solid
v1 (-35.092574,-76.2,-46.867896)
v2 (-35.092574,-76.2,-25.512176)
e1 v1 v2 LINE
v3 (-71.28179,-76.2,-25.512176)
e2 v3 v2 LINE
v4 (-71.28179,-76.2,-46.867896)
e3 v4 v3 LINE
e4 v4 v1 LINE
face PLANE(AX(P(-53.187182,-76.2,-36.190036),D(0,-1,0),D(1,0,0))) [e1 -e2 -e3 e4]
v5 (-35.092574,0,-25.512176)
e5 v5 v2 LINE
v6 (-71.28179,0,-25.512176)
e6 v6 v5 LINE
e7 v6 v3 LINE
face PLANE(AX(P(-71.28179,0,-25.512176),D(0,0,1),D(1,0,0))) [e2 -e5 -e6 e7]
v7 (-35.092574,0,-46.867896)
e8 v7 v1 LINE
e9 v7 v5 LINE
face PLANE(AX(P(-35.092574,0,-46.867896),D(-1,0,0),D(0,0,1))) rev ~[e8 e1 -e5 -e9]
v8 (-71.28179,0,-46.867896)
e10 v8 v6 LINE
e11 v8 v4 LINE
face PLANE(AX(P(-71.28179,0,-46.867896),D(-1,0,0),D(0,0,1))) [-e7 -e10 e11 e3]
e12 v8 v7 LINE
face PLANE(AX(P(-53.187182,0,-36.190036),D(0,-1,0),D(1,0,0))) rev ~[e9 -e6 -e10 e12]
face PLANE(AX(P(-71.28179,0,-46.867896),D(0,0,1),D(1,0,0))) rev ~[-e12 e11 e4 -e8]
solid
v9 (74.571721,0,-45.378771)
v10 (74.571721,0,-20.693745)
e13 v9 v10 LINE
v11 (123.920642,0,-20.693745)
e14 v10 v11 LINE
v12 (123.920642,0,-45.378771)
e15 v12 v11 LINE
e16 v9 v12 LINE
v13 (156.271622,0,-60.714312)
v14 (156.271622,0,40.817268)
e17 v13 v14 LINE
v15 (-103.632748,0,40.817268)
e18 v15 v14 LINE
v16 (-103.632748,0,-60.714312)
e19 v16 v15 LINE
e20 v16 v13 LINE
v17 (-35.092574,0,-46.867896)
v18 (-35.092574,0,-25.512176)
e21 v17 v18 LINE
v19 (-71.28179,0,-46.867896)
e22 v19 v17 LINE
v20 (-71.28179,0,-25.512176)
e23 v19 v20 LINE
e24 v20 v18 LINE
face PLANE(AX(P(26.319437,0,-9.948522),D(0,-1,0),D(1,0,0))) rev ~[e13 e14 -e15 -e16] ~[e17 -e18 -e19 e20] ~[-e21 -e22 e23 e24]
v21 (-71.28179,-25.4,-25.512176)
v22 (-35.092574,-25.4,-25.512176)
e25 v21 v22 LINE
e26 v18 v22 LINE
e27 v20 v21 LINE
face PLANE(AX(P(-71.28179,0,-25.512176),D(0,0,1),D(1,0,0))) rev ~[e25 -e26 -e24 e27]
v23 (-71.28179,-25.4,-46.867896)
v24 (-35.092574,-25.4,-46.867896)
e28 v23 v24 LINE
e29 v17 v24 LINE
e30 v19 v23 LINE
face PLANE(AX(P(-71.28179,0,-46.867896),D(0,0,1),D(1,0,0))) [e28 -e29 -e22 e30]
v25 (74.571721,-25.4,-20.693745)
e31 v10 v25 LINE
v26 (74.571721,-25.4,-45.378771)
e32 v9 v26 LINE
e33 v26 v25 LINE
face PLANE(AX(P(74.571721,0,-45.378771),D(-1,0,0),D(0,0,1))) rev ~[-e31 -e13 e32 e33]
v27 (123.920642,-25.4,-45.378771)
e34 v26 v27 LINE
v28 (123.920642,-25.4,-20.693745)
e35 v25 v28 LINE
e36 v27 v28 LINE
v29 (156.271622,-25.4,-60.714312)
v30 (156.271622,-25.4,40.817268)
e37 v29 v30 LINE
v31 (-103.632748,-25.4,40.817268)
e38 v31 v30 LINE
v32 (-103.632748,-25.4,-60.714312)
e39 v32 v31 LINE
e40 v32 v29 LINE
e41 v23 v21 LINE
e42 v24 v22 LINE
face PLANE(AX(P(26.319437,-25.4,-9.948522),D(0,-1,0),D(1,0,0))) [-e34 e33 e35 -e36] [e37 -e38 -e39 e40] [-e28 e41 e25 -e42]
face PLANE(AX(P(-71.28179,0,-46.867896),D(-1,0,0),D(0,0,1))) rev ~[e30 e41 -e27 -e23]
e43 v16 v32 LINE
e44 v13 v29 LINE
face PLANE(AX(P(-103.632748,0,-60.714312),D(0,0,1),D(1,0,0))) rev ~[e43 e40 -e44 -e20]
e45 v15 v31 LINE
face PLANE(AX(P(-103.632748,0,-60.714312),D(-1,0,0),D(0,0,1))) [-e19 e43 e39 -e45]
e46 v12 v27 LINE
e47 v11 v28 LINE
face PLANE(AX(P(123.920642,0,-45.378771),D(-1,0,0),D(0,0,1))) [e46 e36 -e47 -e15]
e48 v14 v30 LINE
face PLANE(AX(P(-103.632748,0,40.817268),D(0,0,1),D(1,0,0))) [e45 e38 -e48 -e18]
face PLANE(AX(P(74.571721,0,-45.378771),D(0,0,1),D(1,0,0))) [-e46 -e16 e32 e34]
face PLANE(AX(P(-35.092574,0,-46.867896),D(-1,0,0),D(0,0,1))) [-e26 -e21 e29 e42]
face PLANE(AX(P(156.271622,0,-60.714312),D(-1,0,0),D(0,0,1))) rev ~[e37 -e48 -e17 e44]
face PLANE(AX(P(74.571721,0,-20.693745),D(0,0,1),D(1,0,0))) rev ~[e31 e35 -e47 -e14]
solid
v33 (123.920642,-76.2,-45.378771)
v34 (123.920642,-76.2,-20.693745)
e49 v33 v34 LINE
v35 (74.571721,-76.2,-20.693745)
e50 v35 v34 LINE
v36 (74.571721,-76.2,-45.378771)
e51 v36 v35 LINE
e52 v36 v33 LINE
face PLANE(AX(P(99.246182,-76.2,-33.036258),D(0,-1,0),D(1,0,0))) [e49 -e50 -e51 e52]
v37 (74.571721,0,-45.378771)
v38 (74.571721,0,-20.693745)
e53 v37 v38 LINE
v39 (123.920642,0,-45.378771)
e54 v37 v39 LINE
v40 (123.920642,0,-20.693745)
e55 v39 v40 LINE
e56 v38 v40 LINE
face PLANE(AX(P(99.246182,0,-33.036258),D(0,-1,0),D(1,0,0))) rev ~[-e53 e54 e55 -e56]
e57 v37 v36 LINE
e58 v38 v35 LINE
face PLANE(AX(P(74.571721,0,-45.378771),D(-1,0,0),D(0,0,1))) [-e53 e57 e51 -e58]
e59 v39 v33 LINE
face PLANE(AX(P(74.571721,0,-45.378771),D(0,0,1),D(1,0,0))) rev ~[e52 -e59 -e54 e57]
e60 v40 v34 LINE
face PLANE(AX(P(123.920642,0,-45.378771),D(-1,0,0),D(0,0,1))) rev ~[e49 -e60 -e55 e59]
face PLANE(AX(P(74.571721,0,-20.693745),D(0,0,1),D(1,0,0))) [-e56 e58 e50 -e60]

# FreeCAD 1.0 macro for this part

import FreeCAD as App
import Part
import Sketcher
from FreeCAD import Vector
Q = App.Units.Quantity

doc = App.newDocument("Part")
params = doc.addObject("Spreadsheet::Sheet", "Params")
for row, (alias, value) in enumerate([
    ("pad1_length", "3 in"),
    ("pad2_length", "1 in"),
], start=1):
    params.set(f"A{row}", alias)
    params.set(f"B{row}", "=" + value)
    params.setAlias(f"B{row}", alias)

body = doc.addObject("PartDesign::Body", "Body")
body.AllowCompound = True

# Sketch on XZ plane
sketch1 = body.newObject("Sketcher::SketchObject", "Sketch")
sketch1.AttachmentSupport = (doc.getObject("XZ_Plane"), [""])
sketch1.MapMode = "FlatFace"
sketch1.addGeometry([
    Part.LineSegment(Vector(-71.28179, -25.512176, 0), Vector(-71.28179, -46.867896, 0)),  # 0
    Part.LineSegment(Vector(-71.28179, -46.867896, 0), Vector(-35.092574, -46.867896, 0)),  # 1
    Part.LineSegment(Vector(-35.092574, -46.867896, 0), Vector(-35.092574, -25.512176, 0)),  # 2
    Part.LineSegment(Vector(-35.092574, -25.512176, 0), Vector(-71.28179, -25.512176, 0)),  # 3
    Part.LineSegment(Vector(74.571721, -20.693745, 0), Vector(74.571721, -45.378771, 0)),  # 4
    Part.LineSegment(Vector(74.571721, -45.378771, 0), Vector(123.920642, -45.378771, 0)),  # 5
    Part.LineSegment(Vector(123.920642, -45.378771, 0), Vector(123.920642, -20.693745, 0)),  # 6
    Part.LineSegment(Vector(123.920642, -20.693745, 0), Vector(74.571721, -20.693745, 0)),  # 7
], False)
sketch1.addConstraint([
    Sketcher.Constraint("Coincident", 0, 2, 1, 1),
    Sketcher.Constraint("Coincident", 1, 2, 2, 1),
    Sketcher.Constraint("Coincident", 2, 2, 3, 1),
    Sketcher.Constraint("Coincident", 3, 2, 0, 1),
    Sketcher.Constraint("Coincident", 4, 2, 5, 1),
    Sketcher.Constraint("Coincident", 5, 2, 6, 1),
    Sketcher.Constraint("Coincident", 6, 2, 7, 1),
    Sketcher.Constraint("Coincident", 7, 2, 4, 1),
    Sketcher.Constraint("Vertical", 0),
    Sketcher.Constraint("Horizontal", 1),
    Sketcher.Constraint("Vertical", 2),
    Sketcher.Constraint("Horizontal", 3),
    Sketcher.Constraint("Vertical", 4),
    Sketcher.Constraint("Horizontal", 5),
    Sketcher.Constraint("Vertical", 6),
    Sketcher.Constraint("Horizontal", 7),
    Sketcher.Constraint("DistanceX", 5, 1, 5, 2, Q("49.348921 mm")),
    Sketcher.Constraint("DistanceY", 0, 2, 0, 1, Q("21.355719 mm")),
    Sketcher.Constraint("DistanceX", 1, 1, 1, 2, Q("36.189217 mm")),
    Sketcher.Constraint("DistanceY", 4, 2, 4, 1, Q("24.685026 mm")),
    Sketcher.Constraint("DistanceX", 0, 2, -1, 1, Q("71.28179 mm")),
    Sketcher.Constraint("DistanceX", -1, 1, 4, 2, Q("74.571721 mm")),
    Sketcher.Constraint("DistanceY", 4, 2, -1, 1, Q("45.378771 mm")),
    Sketcher.Constraint("DistanceY", 2, 2, 6, 2, Q("4.818431 mm")),
])
pad1 = body.newObject("PartDesign::Pad", "Pad")
pad1.Profile = sketch1
pad1.setExpression("Length", "Params.pad1_length")
body2 = doc.addObject("PartDesign::Body", "Body001")

# Sketch on XZ plane
sketch2 = body2.newObject("Sketcher::SketchObject", "Sketch001")
sketch2.AttachmentSupport = (doc.getObject("XZ_Plane001"), [""])
sketch2.MapMode = "FlatFace"
sketch2.addGeometry([
    Part.LineSegment(Vector(-103.632748, 40.817268, 0), Vector(-103.632748, -60.714312, 0)),  # 0
    Part.LineSegment(Vector(-103.632748, -60.714312, 0), Vector(156.271622, -60.714312, 0)),  # 1
    Part.LineSegment(Vector(156.271622, -60.714312, 0), Vector(156.271622, 40.817268, 0)),  # 2
    Part.LineSegment(Vector(156.271622, 40.817268, 0), Vector(-103.632748, 40.817268, 0)),  # 3
    Part.LineSegment(Vector(-35.092574, -46.867896, 0), Vector(-71.28179, -46.867896, 0)),  # 4
    Part.LineSegment(Vector(-71.28179, -46.867896, 0), Vector(-71.28179, -25.512176, 0)),  # 5
    Part.LineSegment(Vector(-71.28179, -25.512176, 0), Vector(-35.092574, -25.512176, 0)),  # 6
    Part.LineSegment(Vector(-35.092574, -25.512176, 0), Vector(-35.092574, -46.867896, 0)),  # 7
    Part.LineSegment(Vector(123.920642, -45.378771, 0), Vector(74.571721, -45.378771, 0)),  # 8
    Part.LineSegment(Vector(74.571721, -45.378771, 0), Vector(74.571721, -20.693745, 0)),  # 9
    Part.LineSegment(Vector(74.571721, -20.693745, 0), Vector(123.920642, -20.693745, 0)),  # 10
    Part.LineSegment(Vector(123.920642, -20.693745, 0), Vector(123.920642, -45.378771, 0)),  # 11
], False)
sketch2.addConstraint([
    Sketcher.Constraint("Coincident", 0, 2, 1, 1),
    Sketcher.Constraint("Coincident", 1, 2, 2, 1),
    Sketcher.Constraint("Coincident", 2, 2, 3, 1),
    Sketcher.Constraint("Coincident", 3, 2, 0, 1),
    Sketcher.Constraint("Coincident", 4, 2, 5, 1),
    Sketcher.Constraint("Coincident", 5, 2, 6, 1),
    Sketcher.Constraint("Coincident", 6, 2, 7, 1),
    Sketcher.Constraint("Coincident", 7, 2, 4, 1),
    Sketcher.Constraint("Coincident", 8, 2, 9, 1),
    Sketcher.Constraint("Coincident", 9, 2, 10, 1),
    Sketcher.Constraint("Coincident", 10, 2, 11, 1),
    Sketcher.Constraint("Coincident", 11, 2, 8, 1),
    Sketcher.Constraint("Vertical", 0),
    Sketcher.Constraint("Horizontal", 1),
    Sketcher.Constraint("Vertical", 2),
    Sketcher.Constraint("Horizontal", 3),
    Sketcher.Constraint("Horizontal", 4),
    Sketcher.Constraint("Vertical", 5),
    Sketcher.Constraint("Horizontal", 6),
    Sketcher.Constraint("Vertical", 7),
    Sketcher.Constraint("Horizontal", 8),
    Sketcher.Constraint("Vertical", 9),
    Sketcher.Constraint("Horizontal", 10),
    Sketcher.Constraint("Vertical", 11),
    Sketcher.Constraint("DistanceX", 1, 1, 1, 2, Q("259.90437 mm")),
    Sketcher.Constraint("DistanceX", 8, 2, 8, 1, Q("49.348921 mm")),
    Sketcher.Constraint("DistanceY", 0, 2, 0, 1, Q("101.53158 mm")),
    Sketcher.Constraint("DistanceY", 5, 1, 5, 2, Q("21.355719 mm")),
    Sketcher.Constraint("DistanceX", 8, 2, 1, 2, Q("81.699901 mm")),
    Sketcher.Constraint("DistanceX", 4, 2, 4, 1, Q("36.189217 mm")),
    Sketcher.Constraint("DistanceY", 9, 1, 9, 2, Q("24.685026 mm")),
    Sketcher.Constraint("DistanceX", 0, 2, -1, 1, Q("103.632748 mm")),
    Sketcher.Constraint("DistanceX", 4, 2, -1, 1, Q("71.28179 mm")),
    Sketcher.Constraint("DistanceY", 8, 2, -1, 1, Q("45.378771 mm")),
    Sketcher.Constraint("DistanceY", 1, 2, 8, 2, Q("15.335541 mm")),
    Sketcher.Constraint("DistanceY", 6, 2, 9, 2, Q("4.818431 mm")),
])
pad2 = body2.newObject("PartDesign::Pad", "Pad001")
pad2.Profile = sketch2
pad2.setExpression("Length", "Params.pad2_length")

doc.recompute()
